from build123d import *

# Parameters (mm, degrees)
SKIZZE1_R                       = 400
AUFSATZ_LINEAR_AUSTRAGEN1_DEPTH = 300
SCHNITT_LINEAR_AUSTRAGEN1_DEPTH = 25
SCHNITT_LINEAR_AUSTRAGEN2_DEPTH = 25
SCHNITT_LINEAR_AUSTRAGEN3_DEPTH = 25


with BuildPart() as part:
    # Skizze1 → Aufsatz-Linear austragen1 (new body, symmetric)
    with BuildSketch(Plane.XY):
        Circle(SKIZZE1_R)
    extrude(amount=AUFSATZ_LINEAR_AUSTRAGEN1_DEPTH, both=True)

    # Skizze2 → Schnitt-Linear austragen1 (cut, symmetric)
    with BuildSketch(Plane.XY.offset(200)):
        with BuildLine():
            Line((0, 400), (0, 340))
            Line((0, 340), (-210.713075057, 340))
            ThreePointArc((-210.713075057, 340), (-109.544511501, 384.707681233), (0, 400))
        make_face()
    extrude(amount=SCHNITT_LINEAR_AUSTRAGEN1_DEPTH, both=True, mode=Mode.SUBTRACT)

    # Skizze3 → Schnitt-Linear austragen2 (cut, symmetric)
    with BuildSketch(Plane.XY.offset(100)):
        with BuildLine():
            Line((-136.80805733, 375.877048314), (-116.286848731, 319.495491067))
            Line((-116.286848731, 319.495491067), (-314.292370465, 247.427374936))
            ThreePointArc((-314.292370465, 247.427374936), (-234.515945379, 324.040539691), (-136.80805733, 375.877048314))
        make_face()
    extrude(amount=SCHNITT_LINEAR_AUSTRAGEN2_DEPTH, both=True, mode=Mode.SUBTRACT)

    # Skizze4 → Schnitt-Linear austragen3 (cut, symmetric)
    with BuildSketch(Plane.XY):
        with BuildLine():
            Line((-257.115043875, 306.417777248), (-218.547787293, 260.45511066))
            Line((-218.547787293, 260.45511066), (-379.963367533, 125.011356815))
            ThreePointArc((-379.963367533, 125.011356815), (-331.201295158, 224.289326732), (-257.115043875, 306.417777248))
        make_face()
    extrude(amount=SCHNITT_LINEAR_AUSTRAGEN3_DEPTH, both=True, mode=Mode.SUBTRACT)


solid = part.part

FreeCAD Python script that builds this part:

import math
import FreeCAD as App
import Part
import Sketcher
Q = App.Units.Quantity

doc = App.newDocument("Part")
body = doc.addObject("PartDesign::Body", "Body")

sketch1 = body.newObject("Sketcher::SketchObject", "Sketch")
sketch1.AttachmentSupport = (doc.getObject("XY_Plane"), [""])
sketch1.MapMode = "FlatFace"
sketch1.addGeometry(Part.Circle(App.Vector(0, 0, 0), App.Vector(0, 0, 1), 400), False)
sketch1.addConstraint(Sketcher.Constraint("Coincident", 0, 3, -1, 1))
sketch1.addConstraint(Sketcher.Constraint("Diameter", 0, Q("800 mm")))
pad1 = body.newObject("PartDesign::Pad", "Pad")
pad1.Profile = sketch1
pad1.Length = 600
pad1.Midplane = True

sketch2 = body.newObject("Sketcher::SketchObject", "Sketch001")
sketch2.AttachmentSupport = (doc.getObject("XY_Plane"), [""])
sketch2.MapMode = "FlatFace"
sketch2.AttachmentOffset = App.Placement(App.Vector(0, 0, 200), App.Rotation())
sketch2.addGeometry(Part.LineSegment(App.Vector(0, 340, 0), App.Vector(0, 400, 0)), False)
sketch2.addGeometry(Part.ArcOfCircle(Part.Circle(App.Vector(0, 0, 0), App.Vector(0, 0, 1), 400), math.radians(90), math.radians(121.788331)), False)
sketch2.addGeometry(Part.LineSegment(App.Vector(-210.713075, 340, 0), App.Vector(0, 340, 0)), False)
sketch2.addConstraint(Sketcher.Constraint("Coincident", 0, 2, 1, 1))
sketch2.addConstraint(Sketcher.Constraint("Coincident", 1, 2, 2, 1))
sketch2.addConstraint(Sketcher.Constraint("Coincident", 2, 2, 0, 1))
sketch2.addConstraint(Sketcher.Constraint("Vertical", 0))
sketch2.addConstraint(Sketcher.Constraint("Horizontal", 2))
sketch2.addConstraint(Sketcher.Constraint("Coincident", 1, 3, -1, 1))
sketch2.addConstraint(Sketcher.Constraint("PointOnObject", 0, 2, -2))
sketch2.addConstraint(Sketcher.Constraint("Radius", 1, Q("400 mm")))
sketch2.addConstraint(Sketcher.Constraint("DistanceY", 0, 1, 0, 2, Q("60 mm")))
pocket1 = body.newObject("PartDesign::Pocket", "Pocket")
pocket1.Profile = sketch2
pocket1.Length = 50
pocket1.Midplane = True

sketch3 = body.newObject("Sketcher::SketchObject", "Sketch002")
sketch3.AttachmentSupport = (doc.getObject("XY_Plane"), [""])
sketch3.MapMode = "FlatFace"
sketch3.AttachmentOffset = App.Placement(App.Vector(0, 0, 100), App.Rotation())
sketch3.addGeometry(Part.LineSegment(App.Vector(-116.286849, 319.495491, 0), App.Vector(-136.808057, 375.877048, 0)), False)
sketch3.addGeometry(Part.ArcOfCircle(Part.Circle(App.Vector(0, 0, 0), App.Vector(0, 0, 1), 400), math.radians(110), math.radians(141.788331)), False)
sketch3.addGeometry(Part.LineSegment(App.Vector(-314.29237, 247.427375, 0), App.Vector(-116.286849, 319.495491, 0)), False)
sketch3.addConstraint(Sketcher.Constraint("Coincident", 0, 2, 1, 1))
sketch3.addConstraint(Sketcher.Constraint("Coincident", 1, 2, 2, 1))
sketch3.addConstraint(Sketcher.Constraint("Coincident", 2, 2, 0, 1))
sketch3.addConstraint(Sketcher.Constraint("Coincident", 1, 3, -1, 1))
sketch3.addConstraint(Sketcher.Constraint("Perpendicular", 0, 2))
sketch3.addConstraint(Sketcher.Constraint("Radius", 1, Q("400 mm")))
sketch3.addConstraint(Sketcher.Constraint("Angle", 0, Q("110 deg")))
sketch3.addConstraint(Sketcher.Constraint("Distance", 0, Q("60 mm")))
sketch3.addConstraint(Sketcher.Constraint("DistanceY", -1, 1, 0, 2, Q("375.877048 mm")))
pocket2 = body.newObject("PartDesign::Pocket", "Pocket001")
pocket2.Profile = sketch3
pocket2.Length = 50
pocket2.Midplane = True

sketch4 = body.newObject("Sketcher::SketchObject", "Sketch003")
sketch4.AttachmentSupport = (doc.getObject("XY_Plane"), [""])
sketch4.MapMode = "FlatFace"
sketch4.addGeometry(Part.LineSegment(App.Vector(-218.547787, 260.455111, 0), App.Vector(-257.115044, 306.417777, 0)), False)
sketch4.addGeometry(Part.ArcOfCircle(Part.Circle(App.Vector(0, 0, 0), App.Vector(0, 0, 1), 400), math.radians(130), math.radians(161.788331)), False)
sketch4.addGeometry(Part.LineSegment(App.Vector(-379.963368, 125.011357, 0), App.Vector(-218.547787, 260.455111, 0)), False)
sketch4.addConstraint(Sketcher.Constraint("Coincident", 0, 2, 1, 1))
sketch4.addConstraint(Sketcher.Constraint("Coincident", 1, 2, 2, 1))
sketch4.addConstraint(Sketcher.Constraint("Coincident", 2, 2, 0, 1))
sketch4.addConstraint(Sketcher.Constraint("Coincident", 1, 3, -1, 1))
sketch4.addConstraint(Sketcher.Constraint("Perpendicular", 0, 2))
sketch4.addConstraint(Sketcher.Constraint("Radius", 1, Q("400 mm")))
sketch4.addConstraint(Sketcher.Constraint("Angle", 0, Q("130 deg")))
sketch4.addConstraint(Sketcher.Constraint("Distance", 0, Q("60 mm")))
sketch4.addConstraint(Sketcher.Constraint("DistanceY", -1, 1, 2, 2, Q("260.455111 mm")))
pocket3 = body.newObject("PartDesign::Pocket", "Pocket002")
pocket3.Profile = sketch4
pocket3.Length = 50
pocket3.Midplane = True

doc.recompute()
